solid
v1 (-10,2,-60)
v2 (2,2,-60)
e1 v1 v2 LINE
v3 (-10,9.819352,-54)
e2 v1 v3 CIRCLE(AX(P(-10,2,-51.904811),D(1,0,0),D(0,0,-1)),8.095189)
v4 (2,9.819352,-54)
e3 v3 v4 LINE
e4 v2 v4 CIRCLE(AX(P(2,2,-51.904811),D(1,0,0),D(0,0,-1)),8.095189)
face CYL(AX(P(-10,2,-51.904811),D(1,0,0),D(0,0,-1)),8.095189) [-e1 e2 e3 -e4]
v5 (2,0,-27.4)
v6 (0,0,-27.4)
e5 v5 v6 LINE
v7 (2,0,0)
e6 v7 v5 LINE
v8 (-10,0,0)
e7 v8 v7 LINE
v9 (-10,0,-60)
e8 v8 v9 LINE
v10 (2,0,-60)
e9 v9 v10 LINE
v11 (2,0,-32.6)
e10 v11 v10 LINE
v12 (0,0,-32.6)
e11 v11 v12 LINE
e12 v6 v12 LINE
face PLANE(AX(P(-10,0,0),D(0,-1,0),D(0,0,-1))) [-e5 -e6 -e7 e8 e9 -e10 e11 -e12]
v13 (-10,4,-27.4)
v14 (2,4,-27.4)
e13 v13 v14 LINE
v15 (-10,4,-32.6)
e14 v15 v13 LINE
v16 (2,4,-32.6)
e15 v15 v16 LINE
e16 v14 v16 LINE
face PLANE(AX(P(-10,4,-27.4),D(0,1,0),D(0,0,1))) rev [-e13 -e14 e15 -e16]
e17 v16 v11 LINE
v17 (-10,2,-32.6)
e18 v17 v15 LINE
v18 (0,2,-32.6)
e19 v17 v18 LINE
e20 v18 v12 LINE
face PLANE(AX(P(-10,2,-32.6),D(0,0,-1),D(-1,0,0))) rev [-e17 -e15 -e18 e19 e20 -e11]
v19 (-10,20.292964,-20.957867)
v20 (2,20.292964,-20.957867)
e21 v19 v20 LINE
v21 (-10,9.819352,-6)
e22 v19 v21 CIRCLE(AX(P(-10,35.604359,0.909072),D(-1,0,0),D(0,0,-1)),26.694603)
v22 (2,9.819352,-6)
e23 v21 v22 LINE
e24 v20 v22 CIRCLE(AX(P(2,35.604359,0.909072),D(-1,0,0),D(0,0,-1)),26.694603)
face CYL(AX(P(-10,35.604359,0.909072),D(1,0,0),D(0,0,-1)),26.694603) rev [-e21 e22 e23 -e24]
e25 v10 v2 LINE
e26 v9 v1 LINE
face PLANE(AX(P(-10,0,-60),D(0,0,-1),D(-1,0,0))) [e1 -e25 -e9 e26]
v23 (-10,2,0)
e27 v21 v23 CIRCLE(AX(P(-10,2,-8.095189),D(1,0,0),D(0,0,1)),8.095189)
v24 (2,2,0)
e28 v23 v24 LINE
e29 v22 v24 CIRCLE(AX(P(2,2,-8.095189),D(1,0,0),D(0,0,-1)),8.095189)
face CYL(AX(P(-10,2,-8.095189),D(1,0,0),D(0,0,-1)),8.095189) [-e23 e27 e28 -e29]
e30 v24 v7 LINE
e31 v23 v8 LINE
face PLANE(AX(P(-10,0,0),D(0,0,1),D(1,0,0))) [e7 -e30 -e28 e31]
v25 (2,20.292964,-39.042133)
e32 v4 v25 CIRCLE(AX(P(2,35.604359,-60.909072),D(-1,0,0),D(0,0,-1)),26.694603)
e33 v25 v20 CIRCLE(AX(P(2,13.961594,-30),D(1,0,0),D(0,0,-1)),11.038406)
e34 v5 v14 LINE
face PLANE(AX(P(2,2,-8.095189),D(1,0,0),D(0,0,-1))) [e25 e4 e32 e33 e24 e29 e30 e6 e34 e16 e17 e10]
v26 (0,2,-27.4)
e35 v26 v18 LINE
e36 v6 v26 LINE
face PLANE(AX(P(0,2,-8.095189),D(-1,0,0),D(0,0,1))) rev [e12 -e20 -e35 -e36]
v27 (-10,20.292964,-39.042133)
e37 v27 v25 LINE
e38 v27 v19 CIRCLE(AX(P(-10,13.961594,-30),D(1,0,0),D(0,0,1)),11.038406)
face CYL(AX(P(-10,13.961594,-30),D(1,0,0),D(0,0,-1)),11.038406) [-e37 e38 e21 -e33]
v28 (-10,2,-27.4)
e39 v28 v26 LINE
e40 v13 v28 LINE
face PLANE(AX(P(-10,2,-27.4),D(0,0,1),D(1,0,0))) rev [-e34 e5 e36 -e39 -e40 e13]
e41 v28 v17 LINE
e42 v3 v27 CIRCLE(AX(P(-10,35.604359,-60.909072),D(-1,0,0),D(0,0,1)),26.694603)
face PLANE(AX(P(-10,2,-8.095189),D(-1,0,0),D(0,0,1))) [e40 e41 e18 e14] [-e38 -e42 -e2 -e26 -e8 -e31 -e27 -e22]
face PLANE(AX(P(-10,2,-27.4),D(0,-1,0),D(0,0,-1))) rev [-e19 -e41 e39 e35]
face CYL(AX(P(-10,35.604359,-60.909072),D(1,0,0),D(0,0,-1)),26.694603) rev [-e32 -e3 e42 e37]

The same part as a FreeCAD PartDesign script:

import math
import FreeCAD as App
import Part
import Sketcher


def add_polygon(sketch, points):
    """Adds a closed chain of lines whose ends are joined by coincident constraints."""
    first, n = sketch.GeometryCount, len(points)
    for a, b in zip(points, points[1:] + points[:1]):
        sketch.addGeometry(Part.LineSegment(App.Vector(*a, 0), App.Vector(*b, 0)), False)
    for i in range(n):
        sketch.addConstraint(Sketcher.Constraint("Coincident", first + i, 2, first + (i + 1) % n, 1))

doc = App.newDocument("Part")
params = doc.addObject("Spreadsheet::Sheet", "Params")
for row, (alias, value) in enumerate([
    ("sketch1_width", "2 mm"),
    ("sketch1_height", "60 mm"),
    ("sketch1_height2", "5.2 mm"),
    ("pad1_length", "10 mm"),
    ("sketch2_width", "4 mm"),
    ("sketch2_width2", "2 mm"),
    ("sketch2_height", "27.4 mm"),
    ("sketch2_height2", "5.2 mm"),
    ("pad2_length", "2 mm"),
], start=1):
    params.set(f"A{row}", alias)
    params.set(f"B{row}", "=" + value)
    params.setAlias(f"B{row}", alias)

body = doc.addObject("PartDesign::Body", "Body")

# Sketch on YZ plane
sketch1 = body.newObject("Sketcher::SketchObject", "Sketch")
sketch1.AttachmentSupport = (doc.getObject("YZ_Plane"), [""])
sketch1.MapMode = "FlatFace"
sketch1.addGeometry(Part.LineSegment(App.Vector(0, 0, 0), App.Vector(0, -60, 0)), False)  # 0
sketch1.addGeometry(Part.LineSegment(App.Vector(0, -60, 0), App.Vector(2, -60, 0)), False)  # 1
sketch1.addGeometry(Part.ArcOfCircle(Part.Circle(App.Vector(2, -51.9, 0), App.Vector(0, 0, 1), 8.1), math.radians(-90), math.radians(-15)), False)  # 2
sketch1.addGeometry(Part.ArcOfCircle(Part.Circle(App.Vector(35.6, -60.9, 0), App.Vector(0, 0, 1), 26.7), math.radians(125), math.radians(165)), False)  # 3
sketch1.addGeometry(Part.ArcOfCircle(Part.Circle(App.Vector(14, -30, 0), App.Vector(0, 0, 1), 11), math.radians(-55), math.radians(55)), False)  # 4
sketch1.addGeometry(Part.ArcOfCircle(Part.Circle(App.Vector(35.6, 0.9, 0), App.Vector(0, 0, 1), 26.7), math.radians(-165), math.radians(-125)), False)  # 5
sketch1.addGeometry(Part.ArcOfCircle(Part.Circle(App.Vector(2, -8.1, 0), App.Vector(0, 0, 1), 8.1), math.radians(15), math.radians(90)), False)  # 6
sketch1.addGeometry(Part.LineSegment(App.Vector(2, 0, 0), App.Vector(0, 0, 0)), False)  # 7
add_polygon(sketch1, [(2, -32.6), (2, -27.4), (4, -27.4), (4, -32.6)])  # lines 8-11
sketch1.addConstraint([
    Sketcher.Constraint("Coincident", 0, 2, 1, 1),
    Sketcher.Constraint("Tangent", 1, 2, 2, 1),
    Sketcher.Constraint("Tangent", 2, 2, 3, 2),
    Sketcher.Constraint("Tangent", 3, 1, 4, 1),
    Sketcher.Constraint("Tangent", 4, 2, 5, 2),
    Sketcher.Constraint("Tangent", 5, 1, 6, 1),
    Sketcher.Constraint("Tangent", 6, 2, 7, 1),
    Sketcher.Constraint("Coincident", 7, 2, 0, 1),
    Sketcher.Constraint("Vertical", 0),
    Sketcher.Constraint("Horizontal", 1),
    Sketcher.Constraint("Horizontal", 7),
    Sketcher.Constraint("Vertical", 8),
    Sketcher.Constraint("Horizontal", 9),
    Sketcher.Constraint("Vertical", 10),
    Sketcher.Constraint("Horizontal", 11),
    Sketcher.Constraint("Coincident", 7, 2, -1, 1),
    Sketcher.Constraint("Equal", 3, 5),
    Sketcher.Constraint("Equal", 2, 6),
    Sketcher.Constraint("Vertical", 3, 3, 5, 3),
    Sketcher.Constraint("Vertical", 2, 3, 6, 3),
    Sketcher.Constraint("Vertical", 6, 2, 8, 2),
    Sketcher.Constraint("Equal", 7, 9),
    Sketcher.Constraint("DistanceX", 1, 1, 1, 2, 2.0),
    Sketcher.Constraint("DistanceY", 0, 2, 0, 1, 60.0),
    Sketcher.Constraint("DistanceY", 8, 1, 8, 2, 5.2),
    Sketcher.Constraint("DistanceY", 2, 2, -1, 1, 54.0),
    Sketcher.Constraint("DistanceY", 8, 2, -1, 1, 27.4),
    Sketcher.Constraint("Radius", 2, 8.095189),
    Sketcher.Constraint("Radius", 3, 26.694603),
    Sketcher.Constraint("Radius", 4, 11.038406),
])
sketch1.setExpression("Constraints[26]", "Params.sketch1_width")
sketch1.setExpression("Constraints[27]", "Params.sketch1_height")
sketch1.setExpression("Constraints[28]", "Params.sketch1_height2")
pad1 = body.newObject("PartDesign::Pad", "Pad")
pad1.Profile = sketch1
pad1.setExpression("Length", "Params.pad1_length")
pad1.Reversed = True

# Sketch on YZ plane
sketch2 = body.newObject("Sketcher::SketchObject", "Sketch001")
sketch2.AttachmentSupport = (doc.getObject("YZ_Plane"), [""])
sketch2.MapMode = "FlatFace"
sketch2.addGeometry([
    Part.LineSegment(App.Vector(0, 0, 0), App.Vector(0, -27.4, 0)),  # 0
    Part.LineSegment(App.Vector(0, -27.4, 0), App.Vector(4, -27.4, 0)),  # 1
    Part.LineSegment(App.Vector(4, -27.4, 0), App.Vector(4, -32.6, 0)),  # 2
    Part.LineSegment(App.Vector(4, -32.6, 0), App.Vector(0, -32.6, 0)),  # 3
    Part.LineSegment(App.Vector(0, -32.6, 0), App.Vector(0, -60, 0)),  # 4
    Part.LineSegment(App.Vector(0, -60, 0), App.Vector(2, -60, 0)),  # 5
    Part.ArcOfCircle(Part.Circle(App.Vector(2, -51.9, 0), App.Vector(0, 0, 1), 8.1), math.radians(-90), math.radians(-15)),  # 6
    Part.ArcOfCircle(Part.Circle(App.Vector(35.6, -60.9, 0), App.Vector(0, 0, 1), 26.7), math.radians(125), math.radians(165)),  # 7
    Part.ArcOfCircle(Part.Circle(App.Vector(14, -30, 0), App.Vector(0, 0, 1), 11), math.radians(-55), math.radians(55)),  # 8
    Part.ArcOfCircle(Part.Circle(App.Vector(35.6, 0.9, 0), App.Vector(0, 0, 1), 26.7), math.radians(-165), math.radians(-125)),  # 9
    Part.ArcOfCircle(Part.Circle(App.Vector(2, -8.1, 0), App.Vector(0, 0, 1), 8.1), math.radians(15), math.radians(90)),  # 10
    Part.LineSegment(App.Vector(2, 0, 0), App.Vector(0, 0, 0)),  # 11
], False)
sketch2.addConstraint([
    Sketcher.Constraint("Coincident", 0, 2, 1, 1),
    Sketcher.Constraint("Coincident", 1, 2, 2, 1),
    Sketcher.Constraint("Coincident", 2, 2, 3, 1),
    Sketcher.Constraint("Coincident", 3, 2, 4, 1),
    Sketcher.Constraint("Coincident", 4, 2, 5, 1),
    Sketcher.Constraint("Tangent", 5, 2, 6, 1),
    Sketcher.Constraint("Tangent", 6, 2, 7, 2),
    Sketcher.Constraint("Tangent", 7, 1, 8, 1),
    Sketcher.Constraint("Tangent", 8, 2, 9, 2),
    Sketcher.Constraint("Tangent", 9, 1, 10, 1),
    Sketcher.Constraint("Tangent", 10, 2, 11, 1),
    Sketcher.Constraint("Coincident", 11, 2, 0, 1),
    Sketcher.Constraint("Vertical", 0),
    Sketcher.Constraint("Horizontal", 1),
    Sketcher.Constraint("Vertical", 2),
    Sketcher.Constraint("Horizontal", 3),
    Sketcher.Constraint("Vertical", 4),
    Sketcher.Constraint("Horizontal", 5),
    Sketcher.Constraint("Horizontal", 11),
    Sketcher.Constraint("Coincident", 11, 2, -1, 1),
    Sketcher.Constraint("Equal", 7, 9),
    Sketcher.Constraint("Equal", 6, 10),
    Sketcher.Constraint("PointOnObject", 3, 2, -2),
    Sketcher.Constraint("Vertical", 7, 3, 9, 3),
    Sketcher.Constraint("Vertical", 6, 3, 10, 3),
    Sketcher.Constraint("Equal", 0, 4),
    Sketcher.Constraint("DistanceX", 1, 1, 1, 2, 4.0),
    Sketcher.Constraint("DistanceX", 5, 1, 5, 2, 2.0),
    Sketcher.Constraint("DistanceY", 0, 2, 0, 1, 27.4),
    Sketcher.Constraint("DistanceY", 2, 2, 2, 1, 5.2),
    Sketcher.Constraint("DistanceY", 6, 2, -1, 1, 54.0),
    Sketcher.Constraint("Radius", 6, 8.095189),
    Sketcher.Constraint("Radius", 7, 26.694603),
    Sketcher.Constraint("Radius", 8, 11.038406),
])
sketch2.setExpression("Constraints[26]", "Params.sketch2_width")
sketch2.setExpression("Constraints[27]", "Params.sketch2_width2")
sketch2.setExpression("Constraints[28]", "Params.sketch2_height")
sketch2.setExpression("Constraints[29]", "Params.sketch2_height2")
pad2 = body.newObject("PartDesign::Pad", "Pad001")
pad2.Profile = sketch2
pad2.setExpression("Length", "Params.pad2_length")

doc.recompute()
